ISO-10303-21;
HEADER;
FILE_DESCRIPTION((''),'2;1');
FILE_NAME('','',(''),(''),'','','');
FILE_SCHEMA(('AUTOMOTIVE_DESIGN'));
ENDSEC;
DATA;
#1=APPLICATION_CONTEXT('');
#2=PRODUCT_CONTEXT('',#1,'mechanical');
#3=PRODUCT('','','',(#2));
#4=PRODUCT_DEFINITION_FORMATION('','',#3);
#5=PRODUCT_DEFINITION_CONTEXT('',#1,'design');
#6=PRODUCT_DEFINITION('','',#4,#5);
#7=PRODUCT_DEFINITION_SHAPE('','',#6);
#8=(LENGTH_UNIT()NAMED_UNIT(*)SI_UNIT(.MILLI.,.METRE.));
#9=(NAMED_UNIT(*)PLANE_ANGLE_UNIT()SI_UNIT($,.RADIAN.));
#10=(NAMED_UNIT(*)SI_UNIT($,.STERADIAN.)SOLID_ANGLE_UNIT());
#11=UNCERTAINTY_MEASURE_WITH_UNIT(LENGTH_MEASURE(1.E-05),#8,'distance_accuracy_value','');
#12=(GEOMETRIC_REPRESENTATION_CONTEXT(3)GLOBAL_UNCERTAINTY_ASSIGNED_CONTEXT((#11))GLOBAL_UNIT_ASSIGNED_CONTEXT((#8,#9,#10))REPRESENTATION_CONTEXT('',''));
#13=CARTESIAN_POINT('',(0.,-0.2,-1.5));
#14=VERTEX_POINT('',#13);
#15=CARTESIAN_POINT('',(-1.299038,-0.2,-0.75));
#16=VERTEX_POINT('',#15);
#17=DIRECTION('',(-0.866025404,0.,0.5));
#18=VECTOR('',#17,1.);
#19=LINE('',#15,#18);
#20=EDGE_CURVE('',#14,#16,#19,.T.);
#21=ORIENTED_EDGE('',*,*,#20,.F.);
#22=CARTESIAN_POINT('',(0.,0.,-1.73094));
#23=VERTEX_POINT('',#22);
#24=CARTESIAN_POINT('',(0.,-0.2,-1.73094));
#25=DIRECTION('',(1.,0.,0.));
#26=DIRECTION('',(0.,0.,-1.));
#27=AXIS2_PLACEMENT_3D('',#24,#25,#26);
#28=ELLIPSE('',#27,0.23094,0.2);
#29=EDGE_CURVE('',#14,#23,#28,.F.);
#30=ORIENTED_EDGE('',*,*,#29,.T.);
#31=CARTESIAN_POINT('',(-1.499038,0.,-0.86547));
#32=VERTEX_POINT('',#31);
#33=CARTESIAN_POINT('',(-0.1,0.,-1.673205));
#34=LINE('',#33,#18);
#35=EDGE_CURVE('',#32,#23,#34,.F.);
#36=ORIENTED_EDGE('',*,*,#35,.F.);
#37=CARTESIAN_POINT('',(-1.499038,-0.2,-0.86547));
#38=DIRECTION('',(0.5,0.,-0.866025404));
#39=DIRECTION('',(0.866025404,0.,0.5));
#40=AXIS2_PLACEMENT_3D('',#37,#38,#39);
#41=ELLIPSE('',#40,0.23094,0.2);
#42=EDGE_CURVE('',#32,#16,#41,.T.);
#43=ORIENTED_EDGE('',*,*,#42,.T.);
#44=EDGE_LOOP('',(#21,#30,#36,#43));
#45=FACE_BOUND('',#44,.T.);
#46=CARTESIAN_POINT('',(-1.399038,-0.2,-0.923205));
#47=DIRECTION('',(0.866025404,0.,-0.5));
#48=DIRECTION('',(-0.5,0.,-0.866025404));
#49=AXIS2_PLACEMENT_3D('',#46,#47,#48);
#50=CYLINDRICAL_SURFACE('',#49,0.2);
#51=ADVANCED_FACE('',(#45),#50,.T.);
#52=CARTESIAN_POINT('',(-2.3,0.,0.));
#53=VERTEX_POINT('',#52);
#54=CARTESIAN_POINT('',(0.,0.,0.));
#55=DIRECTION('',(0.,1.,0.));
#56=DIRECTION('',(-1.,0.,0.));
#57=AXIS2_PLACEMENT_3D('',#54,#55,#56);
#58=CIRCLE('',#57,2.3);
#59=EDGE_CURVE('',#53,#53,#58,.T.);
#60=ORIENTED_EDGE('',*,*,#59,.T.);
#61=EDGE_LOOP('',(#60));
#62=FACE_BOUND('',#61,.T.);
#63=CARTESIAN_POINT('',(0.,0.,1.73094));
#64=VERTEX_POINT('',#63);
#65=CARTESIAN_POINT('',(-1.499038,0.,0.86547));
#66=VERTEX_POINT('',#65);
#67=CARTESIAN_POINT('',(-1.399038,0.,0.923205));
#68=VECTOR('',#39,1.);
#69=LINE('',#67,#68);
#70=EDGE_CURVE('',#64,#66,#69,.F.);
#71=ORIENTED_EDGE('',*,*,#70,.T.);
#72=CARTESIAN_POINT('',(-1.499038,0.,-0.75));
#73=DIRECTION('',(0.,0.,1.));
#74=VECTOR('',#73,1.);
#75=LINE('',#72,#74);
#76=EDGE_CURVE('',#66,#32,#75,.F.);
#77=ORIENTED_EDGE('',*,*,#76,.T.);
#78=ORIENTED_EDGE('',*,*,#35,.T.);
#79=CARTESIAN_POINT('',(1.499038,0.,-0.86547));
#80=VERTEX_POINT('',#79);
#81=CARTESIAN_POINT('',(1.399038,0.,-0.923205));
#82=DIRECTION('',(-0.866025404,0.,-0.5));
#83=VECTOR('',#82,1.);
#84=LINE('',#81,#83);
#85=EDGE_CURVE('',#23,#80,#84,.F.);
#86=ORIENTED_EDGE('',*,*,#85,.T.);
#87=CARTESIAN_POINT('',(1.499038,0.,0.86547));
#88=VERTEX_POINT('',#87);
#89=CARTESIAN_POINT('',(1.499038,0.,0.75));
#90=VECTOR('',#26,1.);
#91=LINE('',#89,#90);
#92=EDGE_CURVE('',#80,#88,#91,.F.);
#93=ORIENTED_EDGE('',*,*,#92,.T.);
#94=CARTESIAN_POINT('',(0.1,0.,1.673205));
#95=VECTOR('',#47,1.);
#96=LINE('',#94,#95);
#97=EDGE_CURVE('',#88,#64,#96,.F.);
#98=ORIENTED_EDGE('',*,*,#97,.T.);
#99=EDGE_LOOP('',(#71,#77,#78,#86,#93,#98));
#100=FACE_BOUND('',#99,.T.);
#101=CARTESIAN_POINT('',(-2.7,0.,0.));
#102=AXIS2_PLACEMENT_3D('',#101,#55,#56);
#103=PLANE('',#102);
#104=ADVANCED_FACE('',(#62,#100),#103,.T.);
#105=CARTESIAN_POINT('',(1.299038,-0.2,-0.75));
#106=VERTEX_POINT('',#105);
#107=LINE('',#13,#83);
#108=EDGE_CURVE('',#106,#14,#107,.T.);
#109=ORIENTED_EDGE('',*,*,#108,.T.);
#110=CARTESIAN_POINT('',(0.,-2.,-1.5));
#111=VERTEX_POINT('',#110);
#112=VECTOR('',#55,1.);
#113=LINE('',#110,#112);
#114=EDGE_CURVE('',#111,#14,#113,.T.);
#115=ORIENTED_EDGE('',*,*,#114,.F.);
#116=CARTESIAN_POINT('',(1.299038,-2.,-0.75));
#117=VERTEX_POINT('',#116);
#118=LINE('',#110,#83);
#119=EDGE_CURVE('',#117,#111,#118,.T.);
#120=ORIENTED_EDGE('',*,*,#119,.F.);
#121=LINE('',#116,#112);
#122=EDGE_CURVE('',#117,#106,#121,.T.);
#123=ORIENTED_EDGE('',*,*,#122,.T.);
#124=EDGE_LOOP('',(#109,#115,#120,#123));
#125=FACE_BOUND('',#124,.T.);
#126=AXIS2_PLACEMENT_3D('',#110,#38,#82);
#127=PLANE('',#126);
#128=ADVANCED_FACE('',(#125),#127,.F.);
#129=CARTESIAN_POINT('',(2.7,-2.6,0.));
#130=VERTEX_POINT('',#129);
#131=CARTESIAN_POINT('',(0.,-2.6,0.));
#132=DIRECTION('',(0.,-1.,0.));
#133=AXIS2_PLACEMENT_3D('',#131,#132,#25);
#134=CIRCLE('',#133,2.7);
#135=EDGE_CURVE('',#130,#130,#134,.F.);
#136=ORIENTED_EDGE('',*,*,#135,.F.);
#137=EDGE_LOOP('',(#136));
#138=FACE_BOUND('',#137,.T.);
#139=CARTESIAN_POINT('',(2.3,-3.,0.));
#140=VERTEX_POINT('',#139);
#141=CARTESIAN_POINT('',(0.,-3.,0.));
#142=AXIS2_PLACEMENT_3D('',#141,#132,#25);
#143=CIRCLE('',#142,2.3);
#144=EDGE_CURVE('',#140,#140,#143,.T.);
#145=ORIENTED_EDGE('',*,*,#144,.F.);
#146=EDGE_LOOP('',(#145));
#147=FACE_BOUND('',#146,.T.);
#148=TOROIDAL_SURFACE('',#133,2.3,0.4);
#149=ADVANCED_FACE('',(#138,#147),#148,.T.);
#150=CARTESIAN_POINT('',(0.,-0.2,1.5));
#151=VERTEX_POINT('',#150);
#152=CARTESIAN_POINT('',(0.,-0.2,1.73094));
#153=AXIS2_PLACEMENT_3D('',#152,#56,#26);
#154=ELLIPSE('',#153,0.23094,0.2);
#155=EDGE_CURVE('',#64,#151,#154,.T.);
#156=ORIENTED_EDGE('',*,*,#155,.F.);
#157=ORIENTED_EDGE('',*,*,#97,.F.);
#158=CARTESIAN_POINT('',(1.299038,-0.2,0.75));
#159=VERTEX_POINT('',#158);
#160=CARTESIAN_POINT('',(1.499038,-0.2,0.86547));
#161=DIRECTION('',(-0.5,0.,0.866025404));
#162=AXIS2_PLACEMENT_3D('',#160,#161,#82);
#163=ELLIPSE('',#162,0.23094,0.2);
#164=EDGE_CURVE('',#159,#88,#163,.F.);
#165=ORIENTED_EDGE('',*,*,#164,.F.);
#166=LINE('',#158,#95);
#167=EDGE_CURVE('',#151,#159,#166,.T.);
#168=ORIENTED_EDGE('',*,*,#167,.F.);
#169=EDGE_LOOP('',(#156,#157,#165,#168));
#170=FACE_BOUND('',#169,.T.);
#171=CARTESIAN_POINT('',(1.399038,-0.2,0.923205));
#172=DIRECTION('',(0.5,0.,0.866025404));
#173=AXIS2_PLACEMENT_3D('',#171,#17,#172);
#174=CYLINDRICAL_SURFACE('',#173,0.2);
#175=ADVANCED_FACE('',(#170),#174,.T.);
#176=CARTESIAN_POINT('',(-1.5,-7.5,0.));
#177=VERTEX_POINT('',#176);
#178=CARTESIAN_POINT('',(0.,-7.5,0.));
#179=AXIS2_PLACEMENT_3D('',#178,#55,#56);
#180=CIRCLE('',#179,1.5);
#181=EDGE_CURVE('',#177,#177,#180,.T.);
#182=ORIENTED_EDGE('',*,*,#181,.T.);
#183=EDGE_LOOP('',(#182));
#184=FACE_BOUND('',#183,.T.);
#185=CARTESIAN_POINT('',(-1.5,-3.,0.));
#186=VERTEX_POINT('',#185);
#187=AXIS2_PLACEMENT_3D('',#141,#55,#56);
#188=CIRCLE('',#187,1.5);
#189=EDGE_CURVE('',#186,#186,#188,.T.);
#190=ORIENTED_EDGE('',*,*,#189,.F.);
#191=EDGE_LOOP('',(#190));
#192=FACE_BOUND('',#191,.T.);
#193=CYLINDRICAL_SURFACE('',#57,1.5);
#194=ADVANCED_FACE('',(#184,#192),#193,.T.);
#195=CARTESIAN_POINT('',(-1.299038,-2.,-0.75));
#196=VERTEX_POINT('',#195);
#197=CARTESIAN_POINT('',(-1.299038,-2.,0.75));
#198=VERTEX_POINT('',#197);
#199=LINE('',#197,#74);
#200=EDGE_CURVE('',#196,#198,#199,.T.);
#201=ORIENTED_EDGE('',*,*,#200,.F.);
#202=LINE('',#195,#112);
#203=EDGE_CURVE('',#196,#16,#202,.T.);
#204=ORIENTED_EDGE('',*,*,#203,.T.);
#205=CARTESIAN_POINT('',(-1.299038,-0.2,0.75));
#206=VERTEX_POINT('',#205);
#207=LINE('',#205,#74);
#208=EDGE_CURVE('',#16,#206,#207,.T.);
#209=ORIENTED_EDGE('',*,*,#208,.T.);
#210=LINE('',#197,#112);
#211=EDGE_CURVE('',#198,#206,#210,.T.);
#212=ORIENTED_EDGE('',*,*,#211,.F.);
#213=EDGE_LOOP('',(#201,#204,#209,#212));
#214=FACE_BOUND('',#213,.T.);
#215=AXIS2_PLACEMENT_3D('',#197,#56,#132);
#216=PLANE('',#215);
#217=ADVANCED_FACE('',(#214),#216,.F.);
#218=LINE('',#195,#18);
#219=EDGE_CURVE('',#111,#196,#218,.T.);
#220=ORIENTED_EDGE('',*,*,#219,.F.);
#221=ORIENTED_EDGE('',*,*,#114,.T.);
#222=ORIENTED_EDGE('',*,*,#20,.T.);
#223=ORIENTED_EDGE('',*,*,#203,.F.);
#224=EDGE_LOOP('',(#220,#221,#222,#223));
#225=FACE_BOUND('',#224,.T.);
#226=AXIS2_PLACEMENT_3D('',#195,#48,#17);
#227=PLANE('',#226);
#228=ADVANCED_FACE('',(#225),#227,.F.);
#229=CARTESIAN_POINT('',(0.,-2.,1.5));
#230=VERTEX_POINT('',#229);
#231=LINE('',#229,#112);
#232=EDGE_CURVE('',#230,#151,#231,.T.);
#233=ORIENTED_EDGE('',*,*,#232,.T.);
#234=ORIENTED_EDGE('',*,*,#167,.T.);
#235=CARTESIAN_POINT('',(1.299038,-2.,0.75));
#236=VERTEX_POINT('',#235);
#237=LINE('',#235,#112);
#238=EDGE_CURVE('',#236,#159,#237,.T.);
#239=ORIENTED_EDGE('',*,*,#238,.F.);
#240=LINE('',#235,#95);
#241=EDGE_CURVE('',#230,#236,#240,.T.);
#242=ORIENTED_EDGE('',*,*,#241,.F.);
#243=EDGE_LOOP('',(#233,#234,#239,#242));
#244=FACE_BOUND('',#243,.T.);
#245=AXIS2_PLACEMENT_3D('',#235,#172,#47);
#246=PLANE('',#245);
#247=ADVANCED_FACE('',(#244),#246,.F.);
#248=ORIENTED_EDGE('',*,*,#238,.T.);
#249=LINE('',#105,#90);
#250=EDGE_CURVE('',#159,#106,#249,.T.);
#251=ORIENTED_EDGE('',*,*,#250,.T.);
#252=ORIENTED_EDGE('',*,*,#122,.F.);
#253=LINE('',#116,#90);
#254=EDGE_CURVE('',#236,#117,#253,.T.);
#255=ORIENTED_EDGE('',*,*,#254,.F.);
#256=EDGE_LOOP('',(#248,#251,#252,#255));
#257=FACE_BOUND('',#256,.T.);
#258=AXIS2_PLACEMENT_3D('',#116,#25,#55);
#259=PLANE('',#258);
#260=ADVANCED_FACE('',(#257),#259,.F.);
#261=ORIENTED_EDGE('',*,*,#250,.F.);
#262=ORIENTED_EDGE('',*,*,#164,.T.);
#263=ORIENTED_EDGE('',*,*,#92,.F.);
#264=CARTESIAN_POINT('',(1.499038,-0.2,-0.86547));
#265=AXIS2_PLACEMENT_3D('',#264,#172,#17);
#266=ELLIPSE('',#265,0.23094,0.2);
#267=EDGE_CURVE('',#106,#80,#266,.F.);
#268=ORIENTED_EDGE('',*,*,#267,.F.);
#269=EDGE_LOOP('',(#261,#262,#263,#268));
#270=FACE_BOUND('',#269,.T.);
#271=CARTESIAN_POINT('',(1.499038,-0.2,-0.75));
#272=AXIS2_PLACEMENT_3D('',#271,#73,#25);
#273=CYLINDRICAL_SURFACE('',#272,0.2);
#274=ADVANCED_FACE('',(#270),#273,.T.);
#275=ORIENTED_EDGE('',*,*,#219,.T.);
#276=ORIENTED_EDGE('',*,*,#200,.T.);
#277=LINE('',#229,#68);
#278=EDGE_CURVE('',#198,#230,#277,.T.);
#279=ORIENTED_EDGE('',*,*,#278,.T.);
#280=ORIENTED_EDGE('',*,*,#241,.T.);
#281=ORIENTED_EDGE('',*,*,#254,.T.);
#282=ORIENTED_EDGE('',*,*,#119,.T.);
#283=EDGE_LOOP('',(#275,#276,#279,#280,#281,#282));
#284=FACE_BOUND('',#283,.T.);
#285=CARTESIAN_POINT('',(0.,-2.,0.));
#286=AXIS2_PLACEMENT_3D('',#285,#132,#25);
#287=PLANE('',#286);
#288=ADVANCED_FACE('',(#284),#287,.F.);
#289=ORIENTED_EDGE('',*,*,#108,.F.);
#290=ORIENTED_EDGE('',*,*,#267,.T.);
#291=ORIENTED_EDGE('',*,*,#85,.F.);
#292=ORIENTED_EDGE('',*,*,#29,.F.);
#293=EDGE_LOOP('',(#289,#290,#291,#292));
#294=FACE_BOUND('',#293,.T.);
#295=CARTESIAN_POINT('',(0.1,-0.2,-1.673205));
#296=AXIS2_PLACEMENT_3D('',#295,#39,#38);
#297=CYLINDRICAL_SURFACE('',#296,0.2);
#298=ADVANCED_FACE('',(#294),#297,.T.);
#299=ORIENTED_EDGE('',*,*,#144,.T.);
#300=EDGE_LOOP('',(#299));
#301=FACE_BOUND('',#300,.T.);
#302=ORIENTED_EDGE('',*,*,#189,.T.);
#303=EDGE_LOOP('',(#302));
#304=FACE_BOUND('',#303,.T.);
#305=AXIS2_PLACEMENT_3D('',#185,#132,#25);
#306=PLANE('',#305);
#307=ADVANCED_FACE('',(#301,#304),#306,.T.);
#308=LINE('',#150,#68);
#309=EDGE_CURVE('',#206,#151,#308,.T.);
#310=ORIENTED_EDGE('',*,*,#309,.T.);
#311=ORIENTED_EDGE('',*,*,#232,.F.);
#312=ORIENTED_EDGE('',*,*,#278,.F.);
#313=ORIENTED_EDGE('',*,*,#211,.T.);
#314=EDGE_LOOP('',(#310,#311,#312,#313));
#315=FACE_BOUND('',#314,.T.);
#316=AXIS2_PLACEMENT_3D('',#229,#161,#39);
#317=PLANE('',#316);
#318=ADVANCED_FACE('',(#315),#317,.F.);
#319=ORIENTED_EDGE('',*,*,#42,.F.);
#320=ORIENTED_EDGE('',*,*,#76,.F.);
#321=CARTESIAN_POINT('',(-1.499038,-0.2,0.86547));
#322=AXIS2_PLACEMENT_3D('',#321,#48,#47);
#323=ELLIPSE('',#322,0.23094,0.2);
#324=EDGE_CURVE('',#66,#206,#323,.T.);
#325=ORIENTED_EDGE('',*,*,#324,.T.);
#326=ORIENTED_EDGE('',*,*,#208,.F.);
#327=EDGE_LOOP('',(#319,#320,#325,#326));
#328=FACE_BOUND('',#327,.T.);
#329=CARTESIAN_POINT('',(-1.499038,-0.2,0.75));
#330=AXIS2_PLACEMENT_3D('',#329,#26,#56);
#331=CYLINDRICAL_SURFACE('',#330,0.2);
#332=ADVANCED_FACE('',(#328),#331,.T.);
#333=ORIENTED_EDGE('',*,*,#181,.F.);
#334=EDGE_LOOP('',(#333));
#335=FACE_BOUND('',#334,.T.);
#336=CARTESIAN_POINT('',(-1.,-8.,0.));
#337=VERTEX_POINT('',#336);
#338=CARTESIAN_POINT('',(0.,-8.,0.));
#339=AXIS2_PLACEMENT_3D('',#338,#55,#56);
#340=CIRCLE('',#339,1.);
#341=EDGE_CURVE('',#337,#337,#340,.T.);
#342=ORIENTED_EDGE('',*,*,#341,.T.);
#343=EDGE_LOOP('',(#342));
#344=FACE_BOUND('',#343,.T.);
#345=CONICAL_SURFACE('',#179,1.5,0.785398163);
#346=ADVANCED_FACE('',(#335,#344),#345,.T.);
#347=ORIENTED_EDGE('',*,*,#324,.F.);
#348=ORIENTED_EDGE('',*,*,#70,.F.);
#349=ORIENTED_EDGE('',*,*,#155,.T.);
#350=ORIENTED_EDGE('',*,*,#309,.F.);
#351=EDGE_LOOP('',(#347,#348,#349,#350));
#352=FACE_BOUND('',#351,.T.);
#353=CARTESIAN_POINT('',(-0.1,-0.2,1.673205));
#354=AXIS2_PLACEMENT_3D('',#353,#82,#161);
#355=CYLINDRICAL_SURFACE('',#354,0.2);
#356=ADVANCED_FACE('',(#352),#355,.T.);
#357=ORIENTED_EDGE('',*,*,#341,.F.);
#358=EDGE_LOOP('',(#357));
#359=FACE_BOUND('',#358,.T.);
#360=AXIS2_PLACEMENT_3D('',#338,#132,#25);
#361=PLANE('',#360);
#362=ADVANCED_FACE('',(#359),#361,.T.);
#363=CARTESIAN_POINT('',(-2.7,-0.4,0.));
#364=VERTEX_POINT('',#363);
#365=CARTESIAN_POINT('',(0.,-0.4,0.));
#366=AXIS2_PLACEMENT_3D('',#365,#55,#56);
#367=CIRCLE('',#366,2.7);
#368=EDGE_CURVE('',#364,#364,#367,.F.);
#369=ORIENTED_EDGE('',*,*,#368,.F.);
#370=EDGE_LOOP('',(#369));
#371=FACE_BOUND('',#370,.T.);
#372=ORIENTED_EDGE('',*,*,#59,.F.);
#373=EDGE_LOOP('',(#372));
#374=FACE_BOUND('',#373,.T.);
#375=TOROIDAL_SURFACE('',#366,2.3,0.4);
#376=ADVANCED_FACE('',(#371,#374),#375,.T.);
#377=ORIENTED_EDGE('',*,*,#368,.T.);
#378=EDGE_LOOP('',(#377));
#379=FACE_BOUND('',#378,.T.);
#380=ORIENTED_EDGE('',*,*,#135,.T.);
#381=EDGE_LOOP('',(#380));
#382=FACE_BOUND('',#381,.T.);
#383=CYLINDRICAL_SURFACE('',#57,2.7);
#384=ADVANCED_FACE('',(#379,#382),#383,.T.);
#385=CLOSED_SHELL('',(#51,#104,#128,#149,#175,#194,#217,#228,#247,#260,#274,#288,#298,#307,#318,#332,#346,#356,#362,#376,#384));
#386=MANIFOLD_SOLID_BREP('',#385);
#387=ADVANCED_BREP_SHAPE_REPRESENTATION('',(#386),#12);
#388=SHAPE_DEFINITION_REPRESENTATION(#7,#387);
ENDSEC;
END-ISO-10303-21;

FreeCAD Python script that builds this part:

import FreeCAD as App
import Part
import Sketcher
from FreeCAD import Vector
Q = App.Units.Quantity


def edges_at(feature, points):
    """Names of the edges that pass closest to the given points."""
    edges = feature.Shape.Edges
    near = lambda p: min(range(len(edges)), key=lambda i: edges[i].distToShape(Part.Vertex(*p))[0])
    return sorted({f"Edge{near(p) + 1}" for p in points})

doc = App.newDocument("Part")
params = doc.addObject("Spreadsheet::Sheet", "Params")
for row, (alias, value) in enumerate([
    ("sketch1_width", "1 mm"),
    ("sketch1_height", "8 mm"),
    ("sketch1_height2", "3 mm"),
    ("sketch1_width2", "2.7 mm"),
    ("sketch1_width3", "1.2 mm"),
    ("revolution_angle", "360 deg"),
    ("sketch2_height", "1.5 mm"),
    ("pocket1_length", "2 mm"),
    ("fillet_radius", "0.4 mm"),
    ("fillet2_radius", "0.2 mm"),
], start=1):
    params.set(f"A{row}", alias)
    params.set(f"B{row}", "=" + value)
    params.setAlias(f"B{row}", alias)

body = doc.addObject("PartDesign::Body", "Body")

sketch1 = body.newObject("Sketcher::SketchObject", "Sketch")
sketch1.AttachmentSupport = (doc.getObject("XY_Plane"), [""])
sketch1.MapMode = "FlatFace"
sketch1.addGeometry([
    Part.LineSegment(Vector(0, -8, 0), Vector(0, 0, 0)),
    Part.LineSegment(Vector(0, 0, 0), Vector(-2.7, 0, 0)),
    Part.LineSegment(Vector(-2.7, 0, 0), Vector(-2.7, -3, 0)),
    Part.LineSegment(Vector(-2.7, -3, 0), Vector(-1.5, -3, 0)),
    Part.LineSegment(Vector(-1.5, -3, 0), Vector(-1.5, -7.5, 0)),
    Part.LineSegment(Vector(-1.5, -7.5, 0), Vector(-1, -8, 0)),
    Part.LineSegment(Vector(-1, -8, 0), Vector(0, -8, 0)),
], False)
sketch1.addConstraint([
    Sketcher.Constraint("Coincident", 0, 2, 1, 1),
    Sketcher.Constraint("Coincident", 1, 2, 2, 1),
    Sketcher.Constraint("Coincident", 2, 2, 3, 1),
    Sketcher.Constraint("Coincident", 3, 2, 4, 1),
    Sketcher.Constraint("Coincident", 4, 2, 5, 1),
    Sketcher.Constraint("Coincident", 5, 2, 6, 1),
    Sketcher.Constraint("Coincident", 6, 2, 0, 1),
    Sketcher.Constraint("Vertical", 0),
    Sketcher.Constraint("Horizontal", 1),
    Sketcher.Constraint("Vertical", 2),
    Sketcher.Constraint("Horizontal", 3),
    Sketcher.Constraint("Vertical", 4),
    Sketcher.Constraint("Horizontal", 6),
    Sketcher.Constraint("Coincident", 0, 2, -1, 1),
    Sketcher.Constraint("DistanceX", 6, 1, 6, 2, 1.0),
    Sketcher.Constraint("DistanceY", 0, 1, 0, 2, 8.0),
    Sketcher.Constraint("DistanceY", 2, 2, 2, 1, 3.0),
    Sketcher.Constraint("Angle", 5, Q("-45 deg")),
    Sketcher.Constraint("DistanceX", 1, 2, 1, 1, 2.7),
    Sketcher.Constraint("DistanceX", 3, 1, 3, 2, 1.2),
])
sketch1.setExpression("Constraints[14]", "Params.sketch1_width")
sketch1.setExpression("Constraints[15]", "Params.sketch1_height")
sketch1.setExpression("Constraints[16]", "Params.sketch1_height2")
sketch1.setExpression("Constraints[18]", "Params.sketch1_width2")
sketch1.setExpression("Constraints[19]", "Params.sketch1_width3")
revolution = body.newObject("PartDesign::Revolution", "Revolution")
revolution.Profile = sketch1
revolution.ReferenceAxis = (sketch1, ["V_Axis"])
revolution.setExpression("Angle", "Params.revolution_angle")

sketch2 = body.newObject("Sketcher::SketchObject", "Sketch001")
sketch2.AttachmentSupport = (doc.getObject("XZ_Plane"), [""])
sketch2.MapMode = "FlatFace"
sketch2.addGeometry([
    Part.LineSegment(Vector(1.3, 0.8, 0), Vector(1.3, -0.8, 0)),
    Part.LineSegment(Vector(1.3, -0.8, 0), Vector(0, -1.5, 0)),
    Part.LineSegment(Vector(0, -1.5, 0), Vector(-1.3, -0.8, 0)),
    Part.LineSegment(Vector(-1.3, -0.8, 0), Vector(-1.3, 0.8, 0)),
    Part.LineSegment(Vector(-1.3, 0.8, 0), Vector(0, 1.5, 0)),
    Part.LineSegment(Vector(0, 1.5, 0), Vector(1.3, 0.8, 0)),
], False)
sketch2.addConstraint([
    Sketcher.Constraint("Coincident", 0, 2, 1, 1),
    Sketcher.Constraint("Coincident", 1, 2, 2, 1),
    Sketcher.Constraint("Coincident", 2, 2, 3, 1),
    Sketcher.Constraint("Coincident", 3, 2, 4, 1),
    Sketcher.Constraint("Coincident", 4, 2, 5, 1),
    Sketcher.Constraint("Coincident", 5, 2, 0, 1),
    Sketcher.Constraint("Vertical", 0),
    Sketcher.Constraint("Vertical", 3),
    Sketcher.Constraint("Symmetric", 0, 2, 3, 2, -1, 1),
    Sketcher.Constraint("Symmetric", 1, 2, 4, 2, -1, 1),
    Sketcher.Constraint("PointOnObject", 1, 2, -2),
    Sketcher.Constraint("Parallel", 2, 5),
    Sketcher.Constraint("Horizontal", 0, 2, 2, 2),
    Sketcher.Constraint("Angle", 1, Q("-150 deg")),
    Sketcher.Constraint("DistanceY", 0, 2, 0, 1, 1.5),
    Sketcher.Constraint("DistanceY", 1, 2, 4, 2, 3.0),
])
sketch2.setExpression("Constraints[14]", "Params.sketch2_height")
pocket1 = body.newObject("PartDesign::Pocket", "Pocket")
pocket1.Profile = sketch2
pocket1.setExpression("Length", "Params.pocket1_length")
pocket1.Reversed = True
doc.recompute()

fillet = body.newObject("PartDesign::Fillet", "Fillet")
fillet.Base = (pocket1, edges_at(pocket1, [(2.7, 0, 0), (2.7, -3, 0)]))
fillet.setExpression("Radius", "Params.fillet_radius")
doc.recompute()

fillet2 = body.newObject("PartDesign::Fillet", "Fillet001")
fillet2.Base = (fillet, edges_at(fillet, [
    (0.65, 0, -1.125),
    (-0.65, 0, -1.125),
    (-1.299, 0, 0),
    (-0.65, 0, 1.125),
    (0.65, 0, 1.125),
    (1.299, 0, 0),
]))
fillet2.setExpression("Radius", "Params.fillet2_radius")

doc.recompute()
